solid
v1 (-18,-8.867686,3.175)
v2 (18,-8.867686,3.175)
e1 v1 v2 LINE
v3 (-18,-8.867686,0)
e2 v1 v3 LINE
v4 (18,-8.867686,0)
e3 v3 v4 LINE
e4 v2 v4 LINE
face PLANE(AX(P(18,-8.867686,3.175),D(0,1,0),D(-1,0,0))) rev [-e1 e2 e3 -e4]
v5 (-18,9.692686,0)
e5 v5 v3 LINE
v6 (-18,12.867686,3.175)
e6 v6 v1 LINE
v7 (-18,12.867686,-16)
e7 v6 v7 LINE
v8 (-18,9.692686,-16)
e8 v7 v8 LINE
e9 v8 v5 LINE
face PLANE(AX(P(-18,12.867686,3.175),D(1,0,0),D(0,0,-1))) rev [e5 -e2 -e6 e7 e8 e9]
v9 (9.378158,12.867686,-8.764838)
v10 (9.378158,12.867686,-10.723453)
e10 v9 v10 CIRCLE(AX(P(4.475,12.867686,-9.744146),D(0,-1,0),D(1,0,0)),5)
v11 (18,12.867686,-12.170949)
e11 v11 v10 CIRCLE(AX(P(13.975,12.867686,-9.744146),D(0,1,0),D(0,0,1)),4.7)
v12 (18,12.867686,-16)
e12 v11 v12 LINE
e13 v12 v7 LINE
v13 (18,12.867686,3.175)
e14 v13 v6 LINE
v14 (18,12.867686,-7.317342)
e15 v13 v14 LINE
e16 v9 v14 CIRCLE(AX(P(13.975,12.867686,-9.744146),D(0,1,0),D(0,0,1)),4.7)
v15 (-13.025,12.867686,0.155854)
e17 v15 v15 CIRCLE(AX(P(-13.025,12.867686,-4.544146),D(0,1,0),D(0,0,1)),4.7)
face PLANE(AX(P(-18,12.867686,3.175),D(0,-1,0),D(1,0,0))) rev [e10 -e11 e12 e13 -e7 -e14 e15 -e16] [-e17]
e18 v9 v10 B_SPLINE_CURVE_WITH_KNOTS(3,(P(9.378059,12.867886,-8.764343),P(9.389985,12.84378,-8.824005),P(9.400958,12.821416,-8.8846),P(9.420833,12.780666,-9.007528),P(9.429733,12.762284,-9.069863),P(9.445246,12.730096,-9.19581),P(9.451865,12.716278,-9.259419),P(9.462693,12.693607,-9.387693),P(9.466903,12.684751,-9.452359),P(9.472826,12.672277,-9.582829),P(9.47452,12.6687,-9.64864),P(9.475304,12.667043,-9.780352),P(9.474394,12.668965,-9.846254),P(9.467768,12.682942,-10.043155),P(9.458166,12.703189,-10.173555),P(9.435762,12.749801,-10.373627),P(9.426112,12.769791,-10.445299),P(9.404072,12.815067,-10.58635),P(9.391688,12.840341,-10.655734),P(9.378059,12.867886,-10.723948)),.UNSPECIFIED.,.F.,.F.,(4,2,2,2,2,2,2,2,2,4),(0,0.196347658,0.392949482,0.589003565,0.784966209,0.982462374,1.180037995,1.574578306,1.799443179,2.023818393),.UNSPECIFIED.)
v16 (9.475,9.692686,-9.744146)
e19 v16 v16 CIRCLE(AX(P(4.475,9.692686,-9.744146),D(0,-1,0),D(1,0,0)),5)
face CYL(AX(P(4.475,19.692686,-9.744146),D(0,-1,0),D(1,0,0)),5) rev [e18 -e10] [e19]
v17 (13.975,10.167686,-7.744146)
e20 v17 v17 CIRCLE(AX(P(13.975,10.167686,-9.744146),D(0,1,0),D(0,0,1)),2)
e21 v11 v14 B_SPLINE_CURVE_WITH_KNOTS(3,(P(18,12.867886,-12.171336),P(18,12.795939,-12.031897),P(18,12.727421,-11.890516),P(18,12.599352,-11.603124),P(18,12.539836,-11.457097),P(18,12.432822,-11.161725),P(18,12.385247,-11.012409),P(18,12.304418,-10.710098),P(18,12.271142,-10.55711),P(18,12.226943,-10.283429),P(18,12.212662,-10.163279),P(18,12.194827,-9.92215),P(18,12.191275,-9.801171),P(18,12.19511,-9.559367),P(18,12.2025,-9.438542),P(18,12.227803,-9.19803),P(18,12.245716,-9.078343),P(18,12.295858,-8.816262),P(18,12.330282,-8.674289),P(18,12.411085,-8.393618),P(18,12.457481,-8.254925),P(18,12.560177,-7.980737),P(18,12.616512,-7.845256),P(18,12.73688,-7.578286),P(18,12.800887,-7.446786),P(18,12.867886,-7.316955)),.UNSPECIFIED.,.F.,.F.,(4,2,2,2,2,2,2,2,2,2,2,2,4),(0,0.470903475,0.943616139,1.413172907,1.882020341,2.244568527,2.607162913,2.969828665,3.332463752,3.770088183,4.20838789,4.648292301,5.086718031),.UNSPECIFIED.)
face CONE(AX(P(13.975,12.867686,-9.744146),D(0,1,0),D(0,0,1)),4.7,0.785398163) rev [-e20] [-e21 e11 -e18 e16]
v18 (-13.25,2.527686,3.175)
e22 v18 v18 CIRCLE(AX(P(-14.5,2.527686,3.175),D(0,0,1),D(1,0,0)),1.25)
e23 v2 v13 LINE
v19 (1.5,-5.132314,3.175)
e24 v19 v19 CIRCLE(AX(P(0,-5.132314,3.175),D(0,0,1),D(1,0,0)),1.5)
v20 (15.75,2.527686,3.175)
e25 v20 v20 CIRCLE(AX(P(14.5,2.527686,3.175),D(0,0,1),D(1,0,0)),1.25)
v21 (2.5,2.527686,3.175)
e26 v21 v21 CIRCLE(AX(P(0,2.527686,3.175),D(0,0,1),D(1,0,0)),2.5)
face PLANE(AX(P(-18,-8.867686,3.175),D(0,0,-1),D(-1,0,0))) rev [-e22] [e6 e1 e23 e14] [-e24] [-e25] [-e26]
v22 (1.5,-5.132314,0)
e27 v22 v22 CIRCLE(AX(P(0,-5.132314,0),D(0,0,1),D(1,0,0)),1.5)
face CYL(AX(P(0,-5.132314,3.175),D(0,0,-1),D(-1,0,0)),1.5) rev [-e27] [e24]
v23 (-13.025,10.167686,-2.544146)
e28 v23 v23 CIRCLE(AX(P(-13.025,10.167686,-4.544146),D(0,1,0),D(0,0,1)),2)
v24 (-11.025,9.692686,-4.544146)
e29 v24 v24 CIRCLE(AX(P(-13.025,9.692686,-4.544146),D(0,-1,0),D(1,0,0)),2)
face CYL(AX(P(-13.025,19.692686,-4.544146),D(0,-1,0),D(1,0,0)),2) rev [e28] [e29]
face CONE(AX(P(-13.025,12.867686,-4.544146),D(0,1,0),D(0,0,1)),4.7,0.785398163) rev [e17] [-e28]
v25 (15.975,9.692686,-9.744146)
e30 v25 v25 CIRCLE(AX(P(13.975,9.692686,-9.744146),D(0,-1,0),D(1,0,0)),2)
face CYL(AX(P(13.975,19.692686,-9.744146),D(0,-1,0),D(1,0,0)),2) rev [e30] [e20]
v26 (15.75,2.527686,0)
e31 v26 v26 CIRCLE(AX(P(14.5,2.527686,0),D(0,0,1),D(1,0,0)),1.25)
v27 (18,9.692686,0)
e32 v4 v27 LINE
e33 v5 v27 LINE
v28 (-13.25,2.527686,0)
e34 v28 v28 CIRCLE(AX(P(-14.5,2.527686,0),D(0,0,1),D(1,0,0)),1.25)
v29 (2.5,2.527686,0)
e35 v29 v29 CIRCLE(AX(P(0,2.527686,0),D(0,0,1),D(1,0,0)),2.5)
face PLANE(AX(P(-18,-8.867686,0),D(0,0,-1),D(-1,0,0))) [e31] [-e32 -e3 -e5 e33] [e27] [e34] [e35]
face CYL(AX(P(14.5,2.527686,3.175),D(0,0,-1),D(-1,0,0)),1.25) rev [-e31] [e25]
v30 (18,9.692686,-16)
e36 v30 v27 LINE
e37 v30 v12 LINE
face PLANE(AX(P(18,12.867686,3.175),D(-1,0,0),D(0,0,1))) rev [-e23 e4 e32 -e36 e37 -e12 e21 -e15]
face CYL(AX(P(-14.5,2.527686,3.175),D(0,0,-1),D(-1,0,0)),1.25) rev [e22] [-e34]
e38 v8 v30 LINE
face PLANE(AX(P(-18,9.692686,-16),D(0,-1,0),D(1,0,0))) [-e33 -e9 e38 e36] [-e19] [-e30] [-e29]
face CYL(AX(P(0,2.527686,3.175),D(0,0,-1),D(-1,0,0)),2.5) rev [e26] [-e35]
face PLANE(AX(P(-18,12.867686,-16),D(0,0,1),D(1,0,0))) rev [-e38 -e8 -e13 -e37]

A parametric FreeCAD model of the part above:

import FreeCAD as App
import Part
import Sketcher

V = App.Vector


def add_polygon(sketch, points):
    """Adds a closed chain of lines whose ends are joined by coincident constraints."""
    first, n = sketch.GeometryCount, len(points)
    for a, b in zip(points, points[1:] + points[:1]):
        sketch.addGeometry(Part.LineSegment(App.Vector(*a, 0), App.Vector(*b, 0)), False)
    for i in range(n):
        sketch.addConstraint(Sketcher.Constraint("Coincident", first + i, 2, first + (i + 1) % n, 1))

doc = App.newDocument("Part")
body = doc.addObject("PartDesign::Body", "Body")

# Sketch on XY plane
sketch1 = body.newObject("Sketcher::SketchObject", "Sketch")
sketch1.AttachmentSupport = (doc.getObject("XY_Plane"), [""])
sketch1.MapMode = "FlatFace"
add_polygon(sketch1, [(-18, 12.9), (-18, -8.9), (18, -8.9), (18, 12.9)])  # lines 0-3
sketch1.addGeometry(Part.Circle(V(0, -5.1, 0), V(0, 0, 1), 1.5), False)  # 4
sketch1.addGeometry(Part.Circle(V(-14.5, 2.5, 0), V(0, 0, 1), 1.2), False)  # 5
sketch1.addGeometry(Part.Circle(V(0, 2.5, 0), V(0, 0, 1), 2.5), False)  # 6
sketch1.addGeometry(Part.Circle(V(14.5, 2.5, 0), V(0, 0, 1), 1.2), False)  # 7
sketch1.addConstraint(Sketcher.Constraint("Vertical", 0))
sketch1.addConstraint(Sketcher.Constraint("Horizontal", 1))
sketch1.addConstraint(Sketcher.Constraint("Vertical", 2))
sketch1.addConstraint(Sketcher.Constraint("Horizontal", 3))
sketch1.addConstraint(Sketcher.Constraint("Equal", 5, 7))
sketch1.addConstraint(Sketcher.Constraint("Symmetric", 5, 3, 7, 3, -2))
sketch1.addConstraint(Sketcher.Constraint("PointOnObject", 4, 3, -2))
sketch1.addConstraint(Sketcher.Constraint("PointOnObject", 6, 3, -2))
sketch1.addConstraint(Sketcher.Constraint("Horizontal", 5, 3, 6, 3))
sketch1.addConstraint(Sketcher.Constraint("Diameter", 4, 3.0))
sketch1.addConstraint(Sketcher.Constraint("Diameter", 6, 5.0))
sketch1.addConstraint(Sketcher.Constraint("Diameter", 5, 2.5))
sketch1.addConstraint(Sketcher.Constraint("DistanceX", 1, 1, 1, 2, 36.0))
sketch1.addConstraint(Sketcher.Constraint("DistanceX", 0, 2, -1, 1, 18.0))
sketch1.addConstraint(Sketcher.Constraint("DistanceX", 5, 3, 7, 3, 29.0))
sketch1.addConstraint(Sketcher.Constraint("DistanceY", 4, 3, 2, 2, 18.0))
sketch1.addConstraint(Sketcher.Constraint("DistanceY", 4, 3, 5, 3, 7.66))
sketch1.addConstraint(Sketcher.Constraint("DistanceY", 0, 2, 0, 1, 21.735372))
sketch1.addConstraint(Sketcher.Constraint("DistanceY", 4, 3, -1, 1, 5.132314))
pad1 = body.newObject("PartDesign::Pad", "Pad")
pad1.Profile = sketch1
pad1.Length = 3.175

# Sketch on XY plane
sketch2 = body.newObject("Sketcher::SketchObject", "Sketch001")
sketch2.AttachmentSupport = (doc.getObject("XY_Plane"), [""])
sketch2.MapMode = "FlatFace"
add_polygon(sketch2, [(18, 12.9), (18, 9.7), (-18, 9.7), (-18, 12.9)])  # lines 0-3
sketch2.addConstraint(Sketcher.Constraint("Vertical", 0))
sketch2.addConstraint(Sketcher.Constraint("Horizontal", 1))
sketch2.addConstraint(Sketcher.Constraint("Vertical", 2))
sketch2.addConstraint(Sketcher.Constraint("Horizontal", 3))
sketch2.addConstraint(Sketcher.Constraint("DistanceX", 1, 2, 1, 1, 36.0))
sketch2.addConstraint(Sketcher.Constraint("DistanceX", -1, 1, 0, 2, 18.0))
sketch2.addConstraint(Sketcher.Constraint("DistanceY", 0, 2, 0, 1, 3.175))
sketch2.addConstraint(Sketcher.Constraint("DistanceY", -1, 1, 0, 2, 9.692686))
pad2 = body.newObject("PartDesign::Pad", "Pad001")
pad2.Profile = sketch2
pad2.Length = 16
pad2.Reversed = True

# Sketch on XZ plane
sketch3 = body.newObject("Sketcher::SketchObject", "Sketch002")
sketch3.AttachmentSupport = (doc.getObject("XZ_Plane"), [""])
sketch3.MapMode = "FlatFace"
sketch3.AttachmentOffset = App.Placement(V(0, 0, -9.692686), App.Rotation())
sketch3.addGeometry(Part.Circle(V(4.5, -9.7, 0), V(0, 0, 1), 5), False)
sketch3.addGeometry(Part.Circle(V(-13, -4.5, 0), V(0, 0, 1), 2), False)
sketch3.addGeometry(Part.Circle(V(14, -9.7, 0), V(0, 0, 1), 2), False)
sketch3.addConstraint(Sketcher.Constraint("Equal", 1, 2))
sketch3.addConstraint(Sketcher.Constraint("Horizontal", 0, 3, 2, 3))
sketch3.addConstraint(Sketcher.Constraint("Diameter", 0, 10.0))
sketch3.addConstraint(Sketcher.Constraint("Diameter", 1, 4.0))
sketch3.addConstraint(Sketcher.Constraint("DistanceX", 1, 3, 2, 3, 27.0))
sketch3.addConstraint(Sketcher.Constraint("DistanceX", 1, 3, 0, 3, 17.5))
sketch3.addConstraint(Sketcher.Constraint("DistanceY", 0, 3, 1, 3, 5.2))
sketch3.addConstraint(Sketcher.Constraint("DistanceX", -1, 1, 0, 3, 4.475))
sketch3.addConstraint(Sketcher.Constraint("DistanceY", 0, 3, -1, 1, 9.744146))
pocket1 = body.newObject("PartDesign::Pocket", "Pocket")
pocket1.Profile = sketch3
pocket1.Length = 10

# Sketch on XZ plane
sketch4 = body.newObject("Sketcher::SketchObject", "Sketch003")
sketch4.AttachmentSupport = (doc.getObject("XZ_Plane"), [""])
sketch4.MapMode = "FlatFace"
sketch4.AttachmentOffset = App.Placement(V(0, 0, -12.867686), App.Rotation())
sketch4.addGeometry(Part.Circle(V(-13, -4.5, 0), V(0, 0, 1), 2), False)
sketch4.addGeometry(Part.Circle(V(14, -9.7, 0), V(0, 0, 1), 2), False)
sketch4.addConstraint(Sketcher.Constraint("Equal", 0, 1))
sketch4.addConstraint(Sketcher.Constraint("Diameter", 0, 4.0))
sketch4.addConstraint(Sketcher.Constraint("DistanceX", 0, 3, 1, 3, 27.0))
sketch4.addConstraint(Sketcher.Constraint("DistanceY", 1, 3, 0, 3, 5.2))
sketch4.addConstraint(Sketcher.Constraint("DistanceX", 0, 3, -1, 1, 13.025))
sketch4.addConstraint(Sketcher.Constraint("DistanceY", 0, 3, -1, 1, 4.544146))
doc.recompute()
hole = body.newObject("PartDesign::Hole", "Hole")
hole.Profile = sketch4
hole.ThreadType = "None"
hole.Diameter = 4
hole.DepthType = "ThroughAll"
hole.HoleCutType = "Countersink"
hole.HoleCutDiameter = 9.4
hole.HoleCutCountersinkAngle = 90
hole.Reversed = True

doc.recompute()
